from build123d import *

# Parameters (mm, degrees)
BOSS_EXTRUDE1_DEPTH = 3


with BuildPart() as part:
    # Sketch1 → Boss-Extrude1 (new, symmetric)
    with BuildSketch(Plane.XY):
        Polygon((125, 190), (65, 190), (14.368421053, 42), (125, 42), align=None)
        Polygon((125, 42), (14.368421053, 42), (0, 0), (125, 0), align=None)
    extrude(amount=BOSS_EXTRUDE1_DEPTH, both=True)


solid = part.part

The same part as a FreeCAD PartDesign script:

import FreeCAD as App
import Part
import Sketcher

V = App.Vector


def add_polygon(sketch, points):
    """Adds a closed chain of lines whose ends are joined by coincident constraints."""
    first, n = sketch.GeometryCount, len(points)
    for a, b in zip(points, points[1:] + points[:1]):
        sketch.addGeometry(Part.LineSegment(App.Vector(*a, 0), App.Vector(*b, 0)), False)
    for i in range(n):
        sketch.addConstraint(Sketcher.Constraint("Coincident", first + i, 2, first + (i + 1) % n, 1))

doc = App.newDocument("Part")
body = doc.addObject("PartDesign::Body", "Body")

sketch1 = body.newObject("Sketcher::SketchObject", "Sketch")
sketch1.AttachmentSupport = (doc.getObject("XY_Plane"), [""])
sketch1.MapMode = "FlatFace"
add_polygon(sketch1, [(125, 190), (65, 190), (14, 42), (0, 0), (125, 0)])
sketch1.addConstraint([
    Sketcher.Constraint("Horizontal", 0),
    Sketcher.Constraint("Horizontal", 3),
    Sketcher.Constraint("Vertical", 4),
    Sketcher.Constraint("Coincident", 2, 2, -1, 1),
    Sketcher.Constraint("Parallel", 1, 2),
    Sketcher.Constraint("DistanceX", 0, 2, 0, 1, 60.0),
    Sketcher.Constraint("DistanceX", 3, 1, 3, 2, 125.0),
    Sketcher.Constraint("DistanceY", 4, 1, 4, 2, 190.0),
    Sketcher.Constraint("DistanceY", -1, 1, 1, 2, 42.0),
])
pad1 = body.newObject("PartDesign::Pad", "Pad")
pad1.Profile = sketch1
pad1.Length = 6
pad1.Midplane = True

doc.recompute()
